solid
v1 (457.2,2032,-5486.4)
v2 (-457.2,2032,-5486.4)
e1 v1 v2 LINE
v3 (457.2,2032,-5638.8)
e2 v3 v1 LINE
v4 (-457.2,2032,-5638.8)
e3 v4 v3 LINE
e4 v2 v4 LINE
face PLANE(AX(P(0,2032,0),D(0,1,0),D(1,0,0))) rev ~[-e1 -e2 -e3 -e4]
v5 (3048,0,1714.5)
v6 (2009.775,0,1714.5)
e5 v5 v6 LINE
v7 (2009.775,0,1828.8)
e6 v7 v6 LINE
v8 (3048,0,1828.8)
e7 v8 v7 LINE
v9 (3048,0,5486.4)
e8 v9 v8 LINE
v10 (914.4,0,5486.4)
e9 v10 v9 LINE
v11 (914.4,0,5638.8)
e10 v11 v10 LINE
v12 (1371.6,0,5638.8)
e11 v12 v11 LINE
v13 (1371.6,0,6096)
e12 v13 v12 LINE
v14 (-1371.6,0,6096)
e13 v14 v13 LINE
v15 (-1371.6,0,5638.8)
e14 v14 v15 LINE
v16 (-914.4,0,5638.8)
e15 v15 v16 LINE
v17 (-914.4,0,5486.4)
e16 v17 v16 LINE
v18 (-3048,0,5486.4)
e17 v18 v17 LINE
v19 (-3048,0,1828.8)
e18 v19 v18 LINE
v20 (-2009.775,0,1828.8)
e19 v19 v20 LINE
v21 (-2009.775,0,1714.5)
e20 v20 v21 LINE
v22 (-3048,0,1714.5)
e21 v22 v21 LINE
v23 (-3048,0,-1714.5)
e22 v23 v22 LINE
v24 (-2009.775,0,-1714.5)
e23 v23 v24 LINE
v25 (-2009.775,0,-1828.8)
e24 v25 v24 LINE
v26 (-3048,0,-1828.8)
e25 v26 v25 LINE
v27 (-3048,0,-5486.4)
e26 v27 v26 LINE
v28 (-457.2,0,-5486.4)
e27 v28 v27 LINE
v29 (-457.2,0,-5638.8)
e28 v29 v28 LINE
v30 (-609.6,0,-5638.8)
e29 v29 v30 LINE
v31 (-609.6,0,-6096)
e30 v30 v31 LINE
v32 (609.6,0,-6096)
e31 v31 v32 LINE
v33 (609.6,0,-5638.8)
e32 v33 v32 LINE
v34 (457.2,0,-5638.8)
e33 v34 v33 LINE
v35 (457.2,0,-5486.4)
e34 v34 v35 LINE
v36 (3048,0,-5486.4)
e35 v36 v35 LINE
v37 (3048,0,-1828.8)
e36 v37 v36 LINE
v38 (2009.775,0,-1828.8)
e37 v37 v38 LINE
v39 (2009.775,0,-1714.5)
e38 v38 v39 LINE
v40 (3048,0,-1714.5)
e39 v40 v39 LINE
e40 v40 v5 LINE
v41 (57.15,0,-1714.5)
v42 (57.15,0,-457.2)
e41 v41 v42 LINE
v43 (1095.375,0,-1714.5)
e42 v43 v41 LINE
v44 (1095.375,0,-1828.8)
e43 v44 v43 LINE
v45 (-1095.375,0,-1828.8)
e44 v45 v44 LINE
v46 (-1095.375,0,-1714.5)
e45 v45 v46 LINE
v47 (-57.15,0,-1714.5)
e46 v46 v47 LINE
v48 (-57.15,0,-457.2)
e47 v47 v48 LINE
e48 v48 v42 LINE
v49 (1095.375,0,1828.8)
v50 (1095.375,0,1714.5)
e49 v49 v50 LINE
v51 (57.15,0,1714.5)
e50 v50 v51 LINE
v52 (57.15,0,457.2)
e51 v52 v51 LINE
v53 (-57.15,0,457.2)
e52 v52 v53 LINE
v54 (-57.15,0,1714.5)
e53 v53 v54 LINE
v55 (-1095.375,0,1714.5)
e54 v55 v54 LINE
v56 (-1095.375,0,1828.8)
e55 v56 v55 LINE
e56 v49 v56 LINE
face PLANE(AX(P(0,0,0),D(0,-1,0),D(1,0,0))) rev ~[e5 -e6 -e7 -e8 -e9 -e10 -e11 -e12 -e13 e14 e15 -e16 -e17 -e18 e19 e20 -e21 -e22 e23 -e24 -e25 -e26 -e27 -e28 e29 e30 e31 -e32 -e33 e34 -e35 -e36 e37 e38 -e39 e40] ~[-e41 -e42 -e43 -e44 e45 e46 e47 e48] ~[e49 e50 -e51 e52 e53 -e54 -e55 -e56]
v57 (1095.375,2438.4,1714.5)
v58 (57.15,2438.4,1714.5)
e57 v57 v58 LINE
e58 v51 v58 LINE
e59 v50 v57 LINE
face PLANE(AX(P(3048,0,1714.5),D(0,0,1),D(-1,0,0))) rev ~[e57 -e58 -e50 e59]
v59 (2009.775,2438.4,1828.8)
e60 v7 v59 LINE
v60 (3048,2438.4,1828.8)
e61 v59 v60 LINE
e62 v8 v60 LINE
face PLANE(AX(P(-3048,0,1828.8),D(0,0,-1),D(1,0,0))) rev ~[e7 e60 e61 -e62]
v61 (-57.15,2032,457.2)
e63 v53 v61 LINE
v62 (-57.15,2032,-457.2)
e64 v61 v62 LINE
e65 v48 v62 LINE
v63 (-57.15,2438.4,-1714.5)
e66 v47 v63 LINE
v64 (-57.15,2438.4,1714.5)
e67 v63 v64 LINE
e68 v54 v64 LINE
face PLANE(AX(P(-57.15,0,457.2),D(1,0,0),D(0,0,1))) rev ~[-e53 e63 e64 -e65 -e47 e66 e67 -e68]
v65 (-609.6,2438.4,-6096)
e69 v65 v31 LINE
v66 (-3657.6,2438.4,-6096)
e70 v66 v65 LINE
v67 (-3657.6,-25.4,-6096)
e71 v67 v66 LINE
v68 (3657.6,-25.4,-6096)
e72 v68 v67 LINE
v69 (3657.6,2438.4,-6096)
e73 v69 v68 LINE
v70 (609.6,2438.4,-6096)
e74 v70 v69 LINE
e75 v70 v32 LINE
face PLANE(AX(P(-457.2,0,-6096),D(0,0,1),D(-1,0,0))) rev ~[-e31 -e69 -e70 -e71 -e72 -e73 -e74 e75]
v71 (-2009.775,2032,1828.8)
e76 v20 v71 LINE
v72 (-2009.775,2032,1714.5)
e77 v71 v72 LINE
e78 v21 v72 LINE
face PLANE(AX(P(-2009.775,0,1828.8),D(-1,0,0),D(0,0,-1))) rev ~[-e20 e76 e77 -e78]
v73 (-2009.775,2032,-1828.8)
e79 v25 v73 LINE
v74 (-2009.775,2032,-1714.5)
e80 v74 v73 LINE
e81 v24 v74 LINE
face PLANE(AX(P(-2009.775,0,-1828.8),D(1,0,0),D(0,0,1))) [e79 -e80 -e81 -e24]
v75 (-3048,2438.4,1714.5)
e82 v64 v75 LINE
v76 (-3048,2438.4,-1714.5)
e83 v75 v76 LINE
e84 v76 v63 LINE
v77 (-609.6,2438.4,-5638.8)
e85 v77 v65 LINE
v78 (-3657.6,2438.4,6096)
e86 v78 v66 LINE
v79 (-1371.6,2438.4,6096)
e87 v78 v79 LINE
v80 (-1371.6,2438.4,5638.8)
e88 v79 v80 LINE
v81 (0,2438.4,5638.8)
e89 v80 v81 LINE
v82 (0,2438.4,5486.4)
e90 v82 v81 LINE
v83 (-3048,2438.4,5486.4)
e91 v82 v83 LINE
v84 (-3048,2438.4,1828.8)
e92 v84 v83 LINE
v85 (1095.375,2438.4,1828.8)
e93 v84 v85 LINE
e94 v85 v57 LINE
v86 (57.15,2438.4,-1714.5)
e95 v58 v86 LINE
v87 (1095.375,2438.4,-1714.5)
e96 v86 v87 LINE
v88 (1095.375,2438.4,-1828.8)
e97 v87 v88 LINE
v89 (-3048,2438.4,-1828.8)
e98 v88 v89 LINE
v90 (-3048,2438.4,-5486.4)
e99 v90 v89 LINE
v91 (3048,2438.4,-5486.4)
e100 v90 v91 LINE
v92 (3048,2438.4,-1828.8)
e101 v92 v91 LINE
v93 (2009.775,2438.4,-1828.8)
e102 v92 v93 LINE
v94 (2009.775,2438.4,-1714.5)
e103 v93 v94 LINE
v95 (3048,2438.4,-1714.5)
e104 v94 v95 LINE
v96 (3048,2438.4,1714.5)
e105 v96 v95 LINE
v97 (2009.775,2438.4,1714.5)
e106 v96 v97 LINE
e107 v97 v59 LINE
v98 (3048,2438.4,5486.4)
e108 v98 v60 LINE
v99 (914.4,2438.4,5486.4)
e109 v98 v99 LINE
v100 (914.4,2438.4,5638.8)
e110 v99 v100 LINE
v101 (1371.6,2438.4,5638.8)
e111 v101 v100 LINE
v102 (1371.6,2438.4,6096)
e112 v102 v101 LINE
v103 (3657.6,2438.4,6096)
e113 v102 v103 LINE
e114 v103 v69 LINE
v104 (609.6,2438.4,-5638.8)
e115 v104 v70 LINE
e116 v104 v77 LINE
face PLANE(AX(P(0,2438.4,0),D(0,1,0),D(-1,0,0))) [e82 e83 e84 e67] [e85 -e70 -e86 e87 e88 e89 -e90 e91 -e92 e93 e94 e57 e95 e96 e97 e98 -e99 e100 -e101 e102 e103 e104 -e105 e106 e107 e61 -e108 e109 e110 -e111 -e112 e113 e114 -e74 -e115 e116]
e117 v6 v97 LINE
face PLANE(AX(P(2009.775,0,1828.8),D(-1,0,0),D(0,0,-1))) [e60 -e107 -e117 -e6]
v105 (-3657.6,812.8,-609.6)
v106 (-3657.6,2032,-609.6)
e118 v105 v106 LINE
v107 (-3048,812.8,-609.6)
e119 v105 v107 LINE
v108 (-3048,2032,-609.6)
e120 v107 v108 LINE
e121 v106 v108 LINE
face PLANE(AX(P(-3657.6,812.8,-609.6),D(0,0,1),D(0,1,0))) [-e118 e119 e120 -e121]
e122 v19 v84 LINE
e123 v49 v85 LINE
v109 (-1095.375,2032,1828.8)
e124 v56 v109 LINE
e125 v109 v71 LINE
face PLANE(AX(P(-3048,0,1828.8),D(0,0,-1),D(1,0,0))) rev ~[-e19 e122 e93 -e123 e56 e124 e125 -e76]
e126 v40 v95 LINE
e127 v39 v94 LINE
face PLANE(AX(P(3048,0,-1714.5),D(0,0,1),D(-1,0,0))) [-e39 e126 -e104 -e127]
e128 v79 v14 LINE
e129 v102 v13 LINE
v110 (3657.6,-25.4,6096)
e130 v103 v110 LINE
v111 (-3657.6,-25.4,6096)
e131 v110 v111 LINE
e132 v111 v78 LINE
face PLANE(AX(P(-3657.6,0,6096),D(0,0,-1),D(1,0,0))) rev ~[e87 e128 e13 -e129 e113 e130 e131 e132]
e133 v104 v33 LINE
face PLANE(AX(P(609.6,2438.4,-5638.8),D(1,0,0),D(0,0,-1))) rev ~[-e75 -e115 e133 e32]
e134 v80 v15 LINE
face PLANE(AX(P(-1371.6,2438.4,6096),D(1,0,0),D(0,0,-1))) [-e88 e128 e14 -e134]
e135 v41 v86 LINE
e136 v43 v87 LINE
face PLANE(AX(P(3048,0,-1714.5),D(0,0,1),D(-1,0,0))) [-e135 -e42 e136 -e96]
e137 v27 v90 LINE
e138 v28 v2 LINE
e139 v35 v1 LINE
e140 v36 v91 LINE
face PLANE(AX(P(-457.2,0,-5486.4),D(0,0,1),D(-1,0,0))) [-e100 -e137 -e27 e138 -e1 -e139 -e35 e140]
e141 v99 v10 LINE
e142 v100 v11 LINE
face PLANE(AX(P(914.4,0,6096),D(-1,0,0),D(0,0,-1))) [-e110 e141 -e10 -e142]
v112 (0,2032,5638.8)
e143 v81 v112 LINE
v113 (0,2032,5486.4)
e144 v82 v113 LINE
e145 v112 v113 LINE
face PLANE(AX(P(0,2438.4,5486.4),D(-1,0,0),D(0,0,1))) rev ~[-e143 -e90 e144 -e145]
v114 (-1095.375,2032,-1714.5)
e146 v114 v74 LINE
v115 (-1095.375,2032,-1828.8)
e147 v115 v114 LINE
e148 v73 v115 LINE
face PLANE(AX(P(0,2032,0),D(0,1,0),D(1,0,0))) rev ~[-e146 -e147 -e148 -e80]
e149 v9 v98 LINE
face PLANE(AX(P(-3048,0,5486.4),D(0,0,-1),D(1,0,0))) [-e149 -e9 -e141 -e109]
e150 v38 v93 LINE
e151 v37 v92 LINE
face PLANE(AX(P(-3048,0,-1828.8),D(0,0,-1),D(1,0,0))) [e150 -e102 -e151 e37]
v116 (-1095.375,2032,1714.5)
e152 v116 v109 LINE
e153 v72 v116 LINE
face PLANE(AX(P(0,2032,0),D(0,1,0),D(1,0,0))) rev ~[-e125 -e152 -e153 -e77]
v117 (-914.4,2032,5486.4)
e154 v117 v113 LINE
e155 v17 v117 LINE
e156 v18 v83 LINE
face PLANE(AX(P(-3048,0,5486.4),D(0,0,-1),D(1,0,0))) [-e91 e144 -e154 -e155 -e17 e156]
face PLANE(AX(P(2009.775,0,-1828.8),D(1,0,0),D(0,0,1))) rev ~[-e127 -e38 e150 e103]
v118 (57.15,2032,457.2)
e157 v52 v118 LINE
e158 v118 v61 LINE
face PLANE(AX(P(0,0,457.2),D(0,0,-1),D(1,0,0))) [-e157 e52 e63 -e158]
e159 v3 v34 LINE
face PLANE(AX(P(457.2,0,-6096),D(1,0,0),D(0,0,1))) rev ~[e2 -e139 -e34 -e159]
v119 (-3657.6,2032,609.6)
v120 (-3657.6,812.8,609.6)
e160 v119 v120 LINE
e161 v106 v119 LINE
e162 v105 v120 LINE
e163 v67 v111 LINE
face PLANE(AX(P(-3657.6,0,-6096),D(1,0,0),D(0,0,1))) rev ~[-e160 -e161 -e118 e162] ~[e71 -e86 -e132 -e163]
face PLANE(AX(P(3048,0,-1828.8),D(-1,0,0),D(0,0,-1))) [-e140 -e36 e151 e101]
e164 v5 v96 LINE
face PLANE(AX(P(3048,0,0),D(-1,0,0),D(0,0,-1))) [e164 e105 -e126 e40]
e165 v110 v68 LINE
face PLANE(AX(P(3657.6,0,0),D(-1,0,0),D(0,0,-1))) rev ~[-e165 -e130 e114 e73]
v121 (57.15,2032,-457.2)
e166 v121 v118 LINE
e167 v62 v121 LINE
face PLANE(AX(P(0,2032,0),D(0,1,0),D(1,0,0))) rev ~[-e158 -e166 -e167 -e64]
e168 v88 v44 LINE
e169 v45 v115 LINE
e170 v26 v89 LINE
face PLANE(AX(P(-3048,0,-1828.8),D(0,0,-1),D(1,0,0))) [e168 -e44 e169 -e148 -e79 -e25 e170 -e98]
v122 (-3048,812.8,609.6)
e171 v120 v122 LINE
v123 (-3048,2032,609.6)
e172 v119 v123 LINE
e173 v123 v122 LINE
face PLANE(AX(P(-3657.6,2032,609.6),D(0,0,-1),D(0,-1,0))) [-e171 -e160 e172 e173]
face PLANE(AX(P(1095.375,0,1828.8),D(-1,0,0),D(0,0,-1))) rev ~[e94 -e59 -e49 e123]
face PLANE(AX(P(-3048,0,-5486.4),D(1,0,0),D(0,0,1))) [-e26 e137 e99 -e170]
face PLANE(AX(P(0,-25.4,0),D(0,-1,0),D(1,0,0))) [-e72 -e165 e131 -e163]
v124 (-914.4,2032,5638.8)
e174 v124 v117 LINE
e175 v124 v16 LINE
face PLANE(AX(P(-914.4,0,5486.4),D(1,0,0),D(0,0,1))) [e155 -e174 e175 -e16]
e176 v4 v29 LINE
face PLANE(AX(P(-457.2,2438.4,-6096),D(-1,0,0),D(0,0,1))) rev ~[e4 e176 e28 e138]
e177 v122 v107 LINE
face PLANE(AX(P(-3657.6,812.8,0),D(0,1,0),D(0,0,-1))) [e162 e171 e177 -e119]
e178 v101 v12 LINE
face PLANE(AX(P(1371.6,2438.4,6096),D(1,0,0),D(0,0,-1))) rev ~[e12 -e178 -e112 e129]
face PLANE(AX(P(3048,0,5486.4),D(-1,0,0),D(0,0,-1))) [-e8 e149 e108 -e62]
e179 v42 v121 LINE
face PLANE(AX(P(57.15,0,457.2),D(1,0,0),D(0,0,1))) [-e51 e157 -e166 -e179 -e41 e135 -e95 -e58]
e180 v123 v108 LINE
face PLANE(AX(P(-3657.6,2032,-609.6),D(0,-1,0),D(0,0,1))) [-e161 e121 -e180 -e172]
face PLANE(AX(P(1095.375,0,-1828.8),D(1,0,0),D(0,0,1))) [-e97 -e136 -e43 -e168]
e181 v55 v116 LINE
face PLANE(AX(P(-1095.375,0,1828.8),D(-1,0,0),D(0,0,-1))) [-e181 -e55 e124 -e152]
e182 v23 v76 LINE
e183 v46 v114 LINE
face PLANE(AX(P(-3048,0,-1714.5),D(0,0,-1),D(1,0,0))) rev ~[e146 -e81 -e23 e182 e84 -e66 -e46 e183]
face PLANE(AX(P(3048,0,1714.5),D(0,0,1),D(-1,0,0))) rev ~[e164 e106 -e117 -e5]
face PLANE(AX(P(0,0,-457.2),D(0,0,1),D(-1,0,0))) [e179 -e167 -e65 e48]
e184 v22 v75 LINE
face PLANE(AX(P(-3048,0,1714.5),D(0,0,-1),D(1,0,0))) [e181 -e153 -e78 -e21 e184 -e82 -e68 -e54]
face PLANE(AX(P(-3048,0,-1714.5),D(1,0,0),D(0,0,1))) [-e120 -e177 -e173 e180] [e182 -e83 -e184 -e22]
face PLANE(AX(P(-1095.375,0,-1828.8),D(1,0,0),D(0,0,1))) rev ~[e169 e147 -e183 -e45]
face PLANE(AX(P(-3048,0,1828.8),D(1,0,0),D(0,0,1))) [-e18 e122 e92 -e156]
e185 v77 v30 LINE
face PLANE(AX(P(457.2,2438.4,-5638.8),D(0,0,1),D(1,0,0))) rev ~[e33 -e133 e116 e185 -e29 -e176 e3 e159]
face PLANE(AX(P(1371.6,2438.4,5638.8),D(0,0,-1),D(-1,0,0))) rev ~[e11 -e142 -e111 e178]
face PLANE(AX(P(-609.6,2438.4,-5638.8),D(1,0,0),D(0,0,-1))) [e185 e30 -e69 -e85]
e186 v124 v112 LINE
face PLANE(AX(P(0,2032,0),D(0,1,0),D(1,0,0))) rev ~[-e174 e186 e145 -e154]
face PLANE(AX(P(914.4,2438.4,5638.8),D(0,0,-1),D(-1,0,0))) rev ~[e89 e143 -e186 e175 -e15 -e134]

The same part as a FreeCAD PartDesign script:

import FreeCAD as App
import Part
import Sketcher
from FreeCAD import Vector
Q = App.Units.Quantity


def add_polygon(sketch, points):
    """Adds a closed chain of lines whose ends are joined by coincident constraints."""
    first, n = sketch.GeometryCount, len(points)
    for a, b in zip(points, points[1:] + points[:1]):
        sketch.addGeometry(Part.LineSegment(App.Vector(*a, 0), App.Vector(*b, 0)), False)
    for i in range(n):
        sketch.addConstraint(Sketcher.Constraint("Coincident", first + i, 2, first + (i + 1) % n, 1))

doc = App.newDocument("Part")
body = doc.addObject("PartDesign::Body", "Body")
body.AllowCompound = True

# Sketch on XZ plane
sketch1 = body.newObject("Sketcher::SketchObject", "Sketch")
sketch1.AttachmentSupport = (doc.getObject("XZ_Plane"), [""])
sketch1.MapMode = "FlatFace"
add_polygon(sketch1, [(-457.2, -6096), (-3657.6, -6096), (-3657.6, 6096), (-914.4, 6096), (-914.4, 5486.4), (-3048, 5486.4), (-3048, 1828.8), (-2009.775, 1828.8), (-2009.775, 1714.5), (-3048, 1714.5), (-3048, -1714.5), (-2009.775, -1714.5), (-2009.775, -1828.8), (-3048, -1828.8), (-3048, -5486.4), (-457.2, -5486.4)])  # lines 0-15
add_polygon(sketch1, [(-57.15, -457.2), (57.15, -457.2), (57.15, -1714.5), (1095.375, -1714.5), (1095.375, -1828.8), (-1095.375, -1828.8), (-1095.375, -1714.5), (-57.15, -1714.5)])  # lines 16-23
add_polygon(sketch1, [(3048, -1714.5), (3048, 1714.5), (2009.775, 1714.5), (2009.775, 1828.8), (3048, 1828.8), (3048, 5486.4), (914.4, 5486.4), (914.4, 6096), (3657.6, 6096), (3657.6, -6096), (457.2, -6096), (457.2, -5486.4), (3048, -5486.4), (3048, -1828.8), (2009.775, -1828.8), (2009.775, -1714.5)])  # lines 24-39
add_polygon(sketch1, [(57.15, 457.2), (-57.15, 457.2), (-57.15, 1714.5), (-1095.375, 1714.5), (-1095.375, 1828.8), (1095.375, 1828.8), (1095.375, 1714.5), (57.15, 1714.5)])  # lines 40-47
sketch1.addConstraint(Sketcher.Constraint("Horizontal", 0))
sketch1.addConstraint(Sketcher.Constraint("Vertical", 1))
sketch1.addConstraint(Sketcher.Constraint("Horizontal", 2))
sketch1.addConstraint(Sketcher.Constraint("Vertical", 3))
sketch1.addConstraint(Sketcher.Constraint("Horizontal", 4))
sketch1.addConstraint(Sketcher.Constraint("Vertical", 5))
sketch1.addConstraint(Sketcher.Constraint("Horizontal", 6))
sketch1.addConstraint(Sketcher.Constraint("Vertical", 7))
sketch1.addConstraint(Sketcher.Constraint("Horizontal", 8))
sketch1.addConstraint(Sketcher.Constraint("Vertical", 9))
sketch1.addConstraint(Sketcher.Constraint("Horizontal", 10))
sketch1.addConstraint(Sketcher.Constraint("Vertical", 11))
sketch1.addConstraint(Sketcher.Constraint("Horizontal", 12))
sketch1.addConstraint(Sketcher.Constraint("Vertical", 13))
sketch1.addConstraint(Sketcher.Constraint("Horizontal", 14))
sketch1.addConstraint(Sketcher.Constraint("Vertical", 15))
sketch1.addConstraint(Sketcher.Constraint("Horizontal", 16))
sketch1.addConstraint(Sketcher.Constraint("Vertical", 17))
sketch1.addConstraint(Sketcher.Constraint("Horizontal", 18))
sketch1.addConstraint(Sketcher.Constraint("Vertical", 19))
sketch1.addConstraint(Sketcher.Constraint("Horizontal", 20))
sketch1.addConstraint(Sketcher.Constraint("Vertical", 21))
sketch1.addConstraint(Sketcher.Constraint("Horizontal", 22))
sketch1.addConstraint(Sketcher.Constraint("Vertical", 23))
sketch1.addConstraint(Sketcher.Constraint("Vertical", 24))
sketch1.addConstraint(Sketcher.Constraint("Horizontal", 25))
sketch1.addConstraint(Sketcher.Constraint("Vertical", 26))
sketch1.addConstraint(Sketcher.Constraint("Horizontal", 27))
sketch1.addConstraint(Sketcher.Constraint("Vertical", 28))
sketch1.addConstraint(Sketcher.Constraint("Horizontal", 29))
sketch1.addConstraint(Sketcher.Constraint("Vertical", 30))
sketch1.addConstraint(Sketcher.Constraint("Horizontal", 31))
sketch1.addConstraint(Sketcher.Constraint("Vertical", 32))
sketch1.addConstraint(Sketcher.Constraint("Horizontal", 33))
sketch1.addConstraint(Sketcher.Constraint("Vertical", 34))
sketch1.addConstraint(Sketcher.Constraint("Horizontal", 35))
sketch1.addConstraint(Sketcher.Constraint("Vertical", 36))
sketch1.addConstraint(Sketcher.Constraint("Horizontal", 37))
sketch1.addConstraint(Sketcher.Constraint("Vertical", 38))
sketch1.addConstraint(Sketcher.Constraint("Horizontal", 39))
sketch1.addConstraint(Sketcher.Constraint("Horizontal", 40))
sketch1.addConstraint(Sketcher.Constraint("Vertical", 41))
sketch1.addConstraint(Sketcher.Constraint("Horizontal", 42))
sketch1.addConstraint(Sketcher.Constraint("Vertical", 43))
sketch1.addConstraint(Sketcher.Constraint("Horizontal", 44))
sketch1.addConstraint(Sketcher.Constraint("Vertical", 45))
sketch1.addConstraint(Sketcher.Constraint("Horizontal", 46))
sketch1.addConstraint(Sketcher.Constraint("Vertical", 47))
sketch1.addConstraint(Sketcher.Constraint("Symmetric", 9, 2, 24, 2, -1, 1))
sketch1.addConstraint(Sketcher.Constraint("Symmetric", 11, 2, 26, 2, -1, 1))
sketch1.addConstraint(Sketcher.Constraint("Symmetric", 13, 2, 28, 2, -1, 1))
sketch1.addConstraint(Sketcher.Constraint("Symmetric", 0, 2, 31, 2, -1, 1))
sketch1.addConstraint(Sketcher.Constraint("Symmetric", 4, 2, 35, 2, -1, 1))
sketch1.addConstraint(Sketcher.Constraint("Symmetric", 6, 2, 37, 2, -1, 1))
sketch1.addConstraint(Sketcher.Constraint("Symmetric", 16, 2, 40, 2, -1, 1))
sketch1.addConstraint(Sketcher.Constraint("Symmetric", 18, 2, 42, 2, -1, 1))
sketch1.addConstraint(Sketcher.Constraint("Symmetric", 20, 2, 44, 2, -1, 1))
sketch1.addConstraint(Sketcher.Constraint("Symmetric", 22, 2, 46, 2, -1, 1))
sketch1.addConstraint(Sketcher.Constraint("Symmetric", 18, 2, 21, 2, -2))
sketch1.addConstraint(Sketcher.Constraint("Symmetric", 7, 2, 25, 2, -2))
sketch1.addConstraint(Sketcher.Constraint("Symmetric", 5, 2, 27, 2, -2))
sketch1.addConstraint(Sketcher.Constraint("Symmetric", 3, 2, 29, 2, -2))
sketch1.addConstraint(Sketcher.Constraint("Symmetric", 15, 2, 33, 2, -2))
sketch1.addConstraint(Sketcher.Constraint("Horizontal", 10, 2, 17, 2))
sketch1.addConstraint(Sketcher.Constraint("Horizontal", 12, 2, 19, 2))
sketch1.addConstraint(Sketcher.Constraint("Horizontal", 2, 2, 30, 2))
sketch1.addConstraint(Sketcher.Constraint("Horizontal", 22, 2, 38, 2))
sketch1.addConstraint(Sketcher.Constraint("Vertical", 5, 2, 8, 2))
sketch1.addConstraint(Sketcher.Constraint("Vertical", 23, 2, 40, 2))
sketch1.addConstraint(Sketcher.Constraint("Equal", 12, 18))
sketch1.addConstraint(Sketcher.Constraint("Equal", 40, 7))
sketch1.addConstraint(Sketcher.Constraint("DistanceY", 1, 1, 1, 2, Q("480 in")))
sketch1.addConstraint(Sketcher.Constraint("DistanceY", 3, 2, 3, 1, Q("24 in")))
sketch1.addConstraint(Sketcher.Constraint("DistanceX", 16, 1, 16, 2, Q("4.5 in")))
sketch1.addConstraint(Sketcher.Constraint("DistanceX", 2, 2, -1, 1, Q("36 in")))
sketch1.addConstraint(Sketcher.Constraint("DistanceY", -1, 1, 5, 2, Q("72 in")))
sketch1.addConstraint(Sketcher.Constraint("DistanceX", 1, 2, 4, 2, Q("24 in")))
sketch1.addConstraint(Sketcher.Constraint("DistanceX", 11, 2, 20, 2, Q("36 in")))
sketch1.addConstraint(Sketcher.Constraint("DistanceX", 15, 2, 33, 2, Q("36 in")))
sketch1.addConstraint(Sketcher.Constraint("DistanceY", 23, 2, 40, 2, Q("36 in")))
sketch1.addConstraint(Sketcher.Constraint("DistanceX", 0, 2, 0, 1, Q("126 in")))
pad1 = body.newObject("PartDesign::Pad", "Pad")
pad1.Profile = sketch1
pad1.Length = Q("96 in")
pad1.Reversed = True

# Sketch on YZ plane
sketch2 = body.newObject("Sketcher::SketchObject", "Sketch001")
sketch2.AttachmentSupport = (doc.getObject("YZ_Plane"), [""])
sketch2.MapMode = "FlatFace"
sketch2.AttachmentOffset = App.Placement(Vector(0, 0, -144 * 25.4), App.Rotation())
add_polygon(sketch2, [(2032, -609.6), (812.8, -609.6), (812.8, 609.6), (2032, 609.6)])  # lines 0-3
sketch2.addConstraint(Sketcher.Constraint("Horizontal", 0))
sketch2.addConstraint(Sketcher.Constraint("Vertical", 1))
sketch2.addConstraint(Sketcher.Constraint("Horizontal", 2))
sketch2.addConstraint(Sketcher.Constraint("Vertical", 3))
sketch2.addConstraint(Sketcher.Constraint("Equal", 2, 1))
sketch2.addConstraint(Sketcher.Constraint("DistanceX", 0, 2, 0, 1, Q("48 in")))
sketch2.addConstraint(Sketcher.Constraint("DistanceX", -1, 1, 0, 2, Q("32 in")))
sketch2.addConstraint(Sketcher.Constraint("DistanceY", 0, 2, -1, 1, Q("24 in")))
pocket1 = body.newObject("PartDesign::Pocket", "Pocket")
pocket1.Profile = sketch2
pocket1.Length = Q("24 in")
pocket1.Reversed = True

# Sketch on XZ plane
sketch3 = body.newObject("Sketcher::SketchObject", "Sketch002")
sketch3.AttachmentSupport = (doc.getObject("XZ_Plane"), [""])
sketch3.MapMode = "FlatFace"
sketch3.AttachmentOffset = App.Placement(Vector(0, 0, -96 * 25.4), App.Rotation())
add_polygon(sketch3, [(1095.375, -1828.8), (1095.375, -1714.5), (2009.775, -1714.5), (2009.775, -1828.8)])  # lines 0-3
add_polygon(sketch3, [(57.15, 457.2), (57.15, -457.2), (-57.15, -457.2), (-57.15, 457.2)])  # lines 4-7
add_polygon(sketch3, [(-1095.375, -1714.5), (-1095.375, -1828.8), (-2009.775, -1828.8), (-2009.775, -1714.5)])  # lines 8-11
add_polygon(sketch3, [(2009.775, 1714.5), (1095.375, 1714.5), (1095.375, 1828.8), (2009.775, 1828.8)])  # lines 12-15
add_polygon(sketch3, [(-1095.375, 1828.8), (-1095.375, 1714.5), (-2009.775, 1714.5), (-2009.775, 1828.8)])  # lines 16-19
add_polygon(sketch3, [(-457.2, -5486.4), (457.2, -5486.4), (457.2, -6096), (-457.2, -6096)])  # lines 20-23
add_polygon(sketch3, [(914.4, 6096), (914.4, 5486.4), (-914.4, 5486.4), (-914.4, 6096)])  # lines 24-27
sketch3.addConstraint(Sketcher.Constraint("Vertical", 0))
sketch3.addConstraint(Sketcher.Constraint("Horizontal", 1))
sketch3.addConstraint(Sketcher.Constraint("Vertical", 2))
sketch3.addConstraint(Sketcher.Constraint("Horizontal", 3))
sketch3.addConstraint(Sketcher.Constraint("Vertical", 4))
sketch3.addConstraint(Sketcher.Constraint("Horizontal", 5))
sketch3.addConstraint(Sketcher.Constraint("Vertical", 6))
sketch3.addConstraint(Sketcher.Constraint("Horizontal", 7))
sketch3.addConstraint(Sketcher.Constraint("Vertical", 8))
sketch3.addConstraint(Sketcher.Constraint("Horizontal", 9))
sketch3.addConstraint(Sketcher.Constraint("Vertical", 10))
sketch3.addConstraint(Sketcher.Constraint("Horizontal", 11))
sketch3.addConstraint(Sketcher.Constraint("Horizontal", 12))
sketch3.addConstraint(Sketcher.Constraint("Vertical", 13))
sketch3.addConstraint(Sketcher.Constraint("Horizontal", 14))
sketch3.addConstraint(Sketcher.Constraint("Vertical", 15))
sketch3.addConstraint(Sketcher.Constraint("Vertical", 16))
sketch3.addConstraint(Sketcher.Constraint("Horizontal", 17))
sketch3.addConstraint(Sketcher.Constraint("Vertical", 18))
sketch3.addConstraint(Sketcher.Constraint("Horizontal", 19))
sketch3.addConstraint(Sketcher.Constraint("Horizontal", 20))
sketch3.addConstraint(Sketcher.Constraint("Vertical", 21))
sketch3.addConstraint(Sketcher.Constraint("Horizontal", 22))
sketch3.addConstraint(Sketcher.Constraint("Vertical", 23))
sketch3.addConstraint(Sketcher.Constraint("Vertical", 24))
sketch3.addConstraint(Sketcher.Constraint("Horizontal", 25))
sketch3.addConstraint(Sketcher.Constraint("Vertical", 26))
sketch3.addConstraint(Sketcher.Constraint("Horizontal", 27))
sketch3.addConstraint(Sketcher.Constraint("Symmetric", 4, 2, 6, 2, -1, 1))
sketch3.addConstraint(Sketcher.Constraint("Symmetric", 11, 2, 12, 2, -1, 1))
sketch3.addConstraint(Sketcher.Constraint("Symmetric", 9, 2, 14, 2, -1, 1))
sketch3.addConstraint(Sketcher.Constraint("Symmetric", 0, 2, 16, 2, -1, 1))
sketch3.addConstraint(Sketcher.Constraint("Symmetric", 2, 2, 18, 2, -1, 1))
sketch3.addConstraint(Sketcher.Constraint("Symmetric", 3, 2, 8, 2, -2))
sketch3.addConstraint(Sketcher.Constraint("Symmetric", 1, 2, 10, 2, -2))
sketch3.addConstraint(Sketcher.Constraint("Equal", 19, 20))
sketch3.addConstraint(Sketcher.Constraint("Equal", 7, 0))
sketch3.addConstraint(Sketcher.Constraint("Equal", 22, 4))
sketch3.addConstraint(Sketcher.Constraint("Equal", 23, 24))
sketch3.addConstraint(Sketcher.Constraint("DistanceX", 1, 1, 1, 2, Q("36 in")))
sketch3.addConstraint(Sketcher.Constraint("DistanceX", 25, 2, 25, 1, Q("72 in")))
sketch3.addConstraint(Sketcher.Constraint("DistanceY", 21, 2, 21, 1, Q("24 in")))
sketch3.addConstraint(Sketcher.Constraint("DistanceX", 5, 2, 5, 1, Q("4.5 in")))
sketch3.addConstraint(Sketcher.Constraint("DistanceY", 2, 2, -1, 1, Q("72 in")))
sketch3.addConstraint(Sketcher.Constraint("DistanceX", -1, 1, 20, 2, Q("18 in")))
sketch3.addConstraint(Sketcher.Constraint("DistanceY", 20, 2, -1, 1, Q("216 in")))
sketch3.addConstraint(Sketcher.Constraint("DistanceX", -1, 1, 24, 2, Q("36 in")))
sketch3.addConstraint(Sketcher.Constraint("DistanceY", -1, 1, 24, 2, Q("216 in")))
sketch3.addConstraint(Sketcher.Constraint("DistanceX", 8, 2, 3, 2, Q("86.25 in")))
pad2 = body.newObject("PartDesign::Pad", "Pad001")
pad2.Profile = sketch3
pad2.Length = Q("16 in")

# Sketch on XZ plane
sketch4 = body.newObject("Sketcher::SketchObject", "Sketch003")
sketch4.AttachmentSupport = (doc.getObject("XZ_Plane"), [""])
sketch4.MapMode = "FlatFace"
add_polygon(sketch4, [(3657.6, -6096), (3657.6, 6096), (-3657.6, 6096), (-3657.6, -6096)])  # lines 0-3
sketch4.addConstraint(Sketcher.Constraint("Vertical", 0))
sketch4.addConstraint(Sketcher.Constraint("Horizontal", 1))
sketch4.addConstraint(Sketcher.Constraint("Vertical", 2))
sketch4.addConstraint(Sketcher.Constraint("Horizontal", 3))
sketch4.addConstraint(Sketcher.Constraint("Symmetric", 0, 2, 2, 2, -1, 1))
sketch4.addConstraint(Sketcher.Constraint("DistanceX", 1, 2, 1, 1, Q("288 in")))
sketch4.addConstraint(Sketcher.Constraint("DistanceY", 0, 1, 0, 2, Q("480 in")))
pad3 = body.newObject("PartDesign::Pad", "Pad002")
pad3.Profile = sketch4
pad3.Length = Q("1 in")

# Sketch on XZ plane
sketch5 = body.newObject("Sketcher::SketchObject", "Sketch004")
sketch5.AttachmentSupport = (doc.getObject("XZ_Plane"), [""])
sketch5.MapMode = "FlatFace"
sketch5.AttachmentOffset = App.Placement(Vector(0, 0, -96 * 25.4), App.Rotation())
add_polygon(sketch5, [(-457.2, -6096), (-457.2, -5638.8), (457.2, -5638.8), (457.2, -6096)])  # lines 0-3
add_polygon(sketch5, [(914.4, 5638.8), (-914.4, 5638.8), (-914.4, 6096), (914.4, 6096)])  # lines 4-7
sketch5.addConstraint(Sketcher.Constraint("Vertical", 0))
sketch5.addConstraint(Sketcher.Constraint("Horizontal", 1))
sketch5.addConstraint(Sketcher.Constraint("Vertical", 2))
sketch5.addConstraint(Sketcher.Constraint("Horizontal", 3))
sketch5.addConstraint(Sketcher.Constraint("Horizontal", 4))
sketch5.addConstraint(Sketcher.Constraint("Vertical", 5))
sketch5.addConstraint(Sketcher.Constraint("Horizontal", 6))
sketch5.addConstraint(Sketcher.Constraint("Vertical", 7))
sketch5.addConstraint(Sketcher.Constraint("Equal", 2, 5))
sketch5.addConstraint(Sketcher.Constraint("DistanceX", 1, 1, 1, 2, Q("36 in")))
sketch5.addConstraint(Sketcher.Constraint("DistanceX", 4, 2, 4, 1, Q("72 in")))
sketch5.addConstraint(Sketcher.Constraint("DistanceY", 0, 1, 0, 2, Q("18 in")))
sketch5.addConstraint(Sketcher.Constraint("DistanceX", 0, 2, -1, 1, Q("18 in")))
sketch5.addConstraint(Sketcher.Constraint("DistanceY", 0, 2, -1, 1, Q("222 in")))
sketch5.addConstraint(Sketcher.Constraint("DistanceX", 4, 2, -1, 1, Q("36 in")))
sketch5.addConstraint(Sketcher.Constraint("DistanceY", -1, 1, 4, 2, Q("222 in")))
pocket2 = body.newObject("PartDesign::Pocket", "Pocket001")
pocket2.Profile = sketch5
pocket2.Type = "UpToFirst"
pocket2.Reversed = True

# Sketch on XZ plane
sketch6 = body.newObject("Sketcher::SketchObject", "Sketch005")
sketch6.AttachmentSupport = (doc.getObject("XZ_Plane"), [""])
sketch6.MapMode = "FlatFace"
sketch6.AttachmentOffset = App.Placement(Vector(0, 0, -96 * 25.4), App.Rotation())
add_polygon(sketch6, [(0, 5486.4), (0, 5638.8), (914.4, 5638.8), (914.4, 5486.4)])  # lines 0-3
sketch6.addConstraint(Sketcher.Constraint("Vertical", 0))
sketch6.addConstraint(Sketcher.Constraint("Horizontal", 1))
sketch6.addConstraint(Sketcher.Constraint("Vertical", 2))
sketch6.addConstraint(Sketcher.Constraint("Horizontal", 3))
sketch6.addConstraint(Sketcher.Constraint("PointOnObject", 0, 2, -2))
sketch6.addConstraint(Sketcher.Constraint("DistanceX", 1, 1, 1, 2, Q("36 in")))
sketch6.addConstraint(Sketcher.Constraint("DistanceY", 0, 1, 0, 2, Q("6 in")))
sketch6.addConstraint(Sketcher.Constraint("DistanceY", -1, 1, 0, 2, Q("222 in")))
pocket3 = body.newObject("PartDesign::Pocket", "Pocket002")
pocket3.Profile = sketch6
pocket3.Type = "UpToFirst"
pocket3.Reversed = True

# Sketch on XZ plane
sketch7 = body.newObject("Sketcher::SketchObject", "Sketch006")
sketch7.AttachmentSupport = (doc.getObject("XZ_Plane"), [""])
sketch7.MapMode = "FlatFace"
sketch7.AttachmentOffset = App.Placement(Vector(0, 0, -96 * 25.4), App.Rotation())
add_polygon(sketch7, [(609.6, -5638.8), (609.6, -6096), (457.2, -6096), (457.2, -5638.8)])  # lines 0-3
add_polygon(sketch7, [(-609.6, -5638.8), (-457.2, -5638.8), (-457.2, -6096), (-609.6, -6096)])  # lines 4-7
add_polygon(sketch7, [(-1371.6, 6096), (-914.4, 6096), (-914.4, 5638.8), (-1371.6, 5638.8)])  # lines 8-11
add_polygon(sketch7, [(914.4, 5638.8), (914.4, 6096), (1371.6, 6096), (1371.6, 5638.8)])  # lines 12-15
sketch7.addConstraint(Sketcher.Constraint("Vertical", 0))
sketch7.addConstraint(Sketcher.Constraint("Horizontal", 1))
sketch7.addConstraint(Sketcher.Constraint("Vertical", 2))
sketch7.addConstraint(Sketcher.Constraint("Horizontal", 3))
sketch7.addConstraint(Sketcher.Constraint("Horizontal", 4))
sketch7.addConstraint(Sketcher.Constraint("Vertical", 5))
sketch7.addConstraint(Sketcher.Constraint("Horizontal", 6))
sketch7.addConstraint(Sketcher.Constraint("Vertical", 7))
sketch7.addConstraint(Sketcher.Constraint("Horizontal", 8))
sketch7.addConstraint(Sketcher.Constraint("Vertical", 9))
sketch7.addConstraint(Sketcher.Constraint("Horizontal", 10))
sketch7.addConstraint(Sketcher.Constraint("Vertical", 11))
sketch7.addConstraint(Sketcher.Constraint("Vertical", 12))
sketch7.addConstraint(Sketcher.Constraint("Horizontal", 13))
sketch7.addConstraint(Sketcher.Constraint("Vertical", 14))
sketch7.addConstraint(Sketcher.Constraint("Horizontal", 15))
sketch7.addConstraint(Sketcher.Constraint("Symmetric", 2, 2, 4, 2, -2))
sketch7.addConstraint(Sketcher.Constraint("Symmetric", 0, 2, 6, 2, -2))
sketch7.addConstraint(Sketcher.Constraint("Symmetric", 8, 2, 12, 2, -2))
sketch7.addConstraint(Sketcher.Constraint("Symmetric", 10, 2, 14, 2, -2))
sketch7.addConstraint(Sketcher.Constraint("Equal", 15, 0))
sketch7.addConstraint(Sketcher.Constraint("Equal", 7, 9))
sketch7.addConstraint(Sketcher.Constraint("DistanceX", 1, 2, 1, 1, Q("6 in")))
sketch7.addConstraint(Sketcher.Constraint("DistanceX", 8, 1, 8, 2, Q("18 in")))
sketch7.addConstraint(Sketcher.Constraint("DistanceX", -1, 1, 1, 2, Q("18 in")))
sketch7.addConstraint(Sketcher.Constraint("DistanceX", 8, 2, 4, 2, Q("18 in")))
sketch7.addConstraint(Sketcher.Constraint("DistanceY", 0, 2, -1, 1, Q("240 in")))
sketch7.addConstraint(Sketcher.Constraint("DistanceY", -1, 1, 8, 2, Q("240 in")))
pocket4 = body.newObject("PartDesign::Pocket", "Pocket003")
pocket4.Profile = sketch7
pocket4.Length = Q("96 in")
pocket4.Reversed = True

# Sketch on XZ plane
sketch8 = body.newObject("Sketcher::SketchObject", "Sketch007")
sketch8.AttachmentSupport = (doc.getObject("XZ_Plane"), [""])
sketch8.MapMode = "FlatFace"
sketch8.AttachmentOffset = App.Placement(Vector(0, 0, -96 * 25.4), App.Rotation())
add_polygon(sketch8, [(2009.775, 1714.5), (1095.375, 1714.5), (1095.375, 1828.8), (2009.775, 1828.8)])  # lines 0-3
add_polygon(sketch8, [(1095.375, -1714.5), (2009.775, -1714.5), (2009.775, -1828.8), (1095.375, -1828.8)])  # lines 4-7
sketch8.addConstraint(Sketcher.Constraint("Horizontal", 0))
sketch8.addConstraint(Sketcher.Constraint("Vertical", 1))
sketch8.addConstraint(Sketcher.Constraint("Horizontal", 2))
sketch8.addConstraint(Sketcher.Constraint("Vertical", 3))
sketch8.addConstraint(Sketcher.Constraint("Horizontal", 4))
sketch8.addConstraint(Sketcher.Constraint("Vertical", 5))
sketch8.addConstraint(Sketcher.Constraint("Horizontal", 6))
sketch8.addConstraint(Sketcher.Constraint("Vertical", 7))
sketch8.addConstraint(Sketcher.Constraint("Symmetric", 3, 2, 4, 2, -1))
sketch8.addConstraint(Sketcher.Constraint("Symmetric", 1, 2, 6, 2, -1))
sketch8.addConstraint(Sketcher.Constraint("DistanceX", 0, 2, 0, 1, Q("36 in")))
sketch8.addConstraint(Sketcher.Constraint("DistanceY", 1, 1, 1, 2, Q("4.5 in")))
sketch8.addConstraint(Sketcher.Constraint("DistanceY", -1, 1, 1, 2, Q("72 in")))
sketch8.addConstraint(Sketcher.Constraint("DistanceX", -1, 1, 0, 2, Q("43.125 in")))
pocket5 = body.newObject("PartDesign::Pocket", "Pocket004")
pocket5.Profile = sketch8
pocket5.Type = "UpToFirst"
pocket5.Reversed = True

doc.recompute()
